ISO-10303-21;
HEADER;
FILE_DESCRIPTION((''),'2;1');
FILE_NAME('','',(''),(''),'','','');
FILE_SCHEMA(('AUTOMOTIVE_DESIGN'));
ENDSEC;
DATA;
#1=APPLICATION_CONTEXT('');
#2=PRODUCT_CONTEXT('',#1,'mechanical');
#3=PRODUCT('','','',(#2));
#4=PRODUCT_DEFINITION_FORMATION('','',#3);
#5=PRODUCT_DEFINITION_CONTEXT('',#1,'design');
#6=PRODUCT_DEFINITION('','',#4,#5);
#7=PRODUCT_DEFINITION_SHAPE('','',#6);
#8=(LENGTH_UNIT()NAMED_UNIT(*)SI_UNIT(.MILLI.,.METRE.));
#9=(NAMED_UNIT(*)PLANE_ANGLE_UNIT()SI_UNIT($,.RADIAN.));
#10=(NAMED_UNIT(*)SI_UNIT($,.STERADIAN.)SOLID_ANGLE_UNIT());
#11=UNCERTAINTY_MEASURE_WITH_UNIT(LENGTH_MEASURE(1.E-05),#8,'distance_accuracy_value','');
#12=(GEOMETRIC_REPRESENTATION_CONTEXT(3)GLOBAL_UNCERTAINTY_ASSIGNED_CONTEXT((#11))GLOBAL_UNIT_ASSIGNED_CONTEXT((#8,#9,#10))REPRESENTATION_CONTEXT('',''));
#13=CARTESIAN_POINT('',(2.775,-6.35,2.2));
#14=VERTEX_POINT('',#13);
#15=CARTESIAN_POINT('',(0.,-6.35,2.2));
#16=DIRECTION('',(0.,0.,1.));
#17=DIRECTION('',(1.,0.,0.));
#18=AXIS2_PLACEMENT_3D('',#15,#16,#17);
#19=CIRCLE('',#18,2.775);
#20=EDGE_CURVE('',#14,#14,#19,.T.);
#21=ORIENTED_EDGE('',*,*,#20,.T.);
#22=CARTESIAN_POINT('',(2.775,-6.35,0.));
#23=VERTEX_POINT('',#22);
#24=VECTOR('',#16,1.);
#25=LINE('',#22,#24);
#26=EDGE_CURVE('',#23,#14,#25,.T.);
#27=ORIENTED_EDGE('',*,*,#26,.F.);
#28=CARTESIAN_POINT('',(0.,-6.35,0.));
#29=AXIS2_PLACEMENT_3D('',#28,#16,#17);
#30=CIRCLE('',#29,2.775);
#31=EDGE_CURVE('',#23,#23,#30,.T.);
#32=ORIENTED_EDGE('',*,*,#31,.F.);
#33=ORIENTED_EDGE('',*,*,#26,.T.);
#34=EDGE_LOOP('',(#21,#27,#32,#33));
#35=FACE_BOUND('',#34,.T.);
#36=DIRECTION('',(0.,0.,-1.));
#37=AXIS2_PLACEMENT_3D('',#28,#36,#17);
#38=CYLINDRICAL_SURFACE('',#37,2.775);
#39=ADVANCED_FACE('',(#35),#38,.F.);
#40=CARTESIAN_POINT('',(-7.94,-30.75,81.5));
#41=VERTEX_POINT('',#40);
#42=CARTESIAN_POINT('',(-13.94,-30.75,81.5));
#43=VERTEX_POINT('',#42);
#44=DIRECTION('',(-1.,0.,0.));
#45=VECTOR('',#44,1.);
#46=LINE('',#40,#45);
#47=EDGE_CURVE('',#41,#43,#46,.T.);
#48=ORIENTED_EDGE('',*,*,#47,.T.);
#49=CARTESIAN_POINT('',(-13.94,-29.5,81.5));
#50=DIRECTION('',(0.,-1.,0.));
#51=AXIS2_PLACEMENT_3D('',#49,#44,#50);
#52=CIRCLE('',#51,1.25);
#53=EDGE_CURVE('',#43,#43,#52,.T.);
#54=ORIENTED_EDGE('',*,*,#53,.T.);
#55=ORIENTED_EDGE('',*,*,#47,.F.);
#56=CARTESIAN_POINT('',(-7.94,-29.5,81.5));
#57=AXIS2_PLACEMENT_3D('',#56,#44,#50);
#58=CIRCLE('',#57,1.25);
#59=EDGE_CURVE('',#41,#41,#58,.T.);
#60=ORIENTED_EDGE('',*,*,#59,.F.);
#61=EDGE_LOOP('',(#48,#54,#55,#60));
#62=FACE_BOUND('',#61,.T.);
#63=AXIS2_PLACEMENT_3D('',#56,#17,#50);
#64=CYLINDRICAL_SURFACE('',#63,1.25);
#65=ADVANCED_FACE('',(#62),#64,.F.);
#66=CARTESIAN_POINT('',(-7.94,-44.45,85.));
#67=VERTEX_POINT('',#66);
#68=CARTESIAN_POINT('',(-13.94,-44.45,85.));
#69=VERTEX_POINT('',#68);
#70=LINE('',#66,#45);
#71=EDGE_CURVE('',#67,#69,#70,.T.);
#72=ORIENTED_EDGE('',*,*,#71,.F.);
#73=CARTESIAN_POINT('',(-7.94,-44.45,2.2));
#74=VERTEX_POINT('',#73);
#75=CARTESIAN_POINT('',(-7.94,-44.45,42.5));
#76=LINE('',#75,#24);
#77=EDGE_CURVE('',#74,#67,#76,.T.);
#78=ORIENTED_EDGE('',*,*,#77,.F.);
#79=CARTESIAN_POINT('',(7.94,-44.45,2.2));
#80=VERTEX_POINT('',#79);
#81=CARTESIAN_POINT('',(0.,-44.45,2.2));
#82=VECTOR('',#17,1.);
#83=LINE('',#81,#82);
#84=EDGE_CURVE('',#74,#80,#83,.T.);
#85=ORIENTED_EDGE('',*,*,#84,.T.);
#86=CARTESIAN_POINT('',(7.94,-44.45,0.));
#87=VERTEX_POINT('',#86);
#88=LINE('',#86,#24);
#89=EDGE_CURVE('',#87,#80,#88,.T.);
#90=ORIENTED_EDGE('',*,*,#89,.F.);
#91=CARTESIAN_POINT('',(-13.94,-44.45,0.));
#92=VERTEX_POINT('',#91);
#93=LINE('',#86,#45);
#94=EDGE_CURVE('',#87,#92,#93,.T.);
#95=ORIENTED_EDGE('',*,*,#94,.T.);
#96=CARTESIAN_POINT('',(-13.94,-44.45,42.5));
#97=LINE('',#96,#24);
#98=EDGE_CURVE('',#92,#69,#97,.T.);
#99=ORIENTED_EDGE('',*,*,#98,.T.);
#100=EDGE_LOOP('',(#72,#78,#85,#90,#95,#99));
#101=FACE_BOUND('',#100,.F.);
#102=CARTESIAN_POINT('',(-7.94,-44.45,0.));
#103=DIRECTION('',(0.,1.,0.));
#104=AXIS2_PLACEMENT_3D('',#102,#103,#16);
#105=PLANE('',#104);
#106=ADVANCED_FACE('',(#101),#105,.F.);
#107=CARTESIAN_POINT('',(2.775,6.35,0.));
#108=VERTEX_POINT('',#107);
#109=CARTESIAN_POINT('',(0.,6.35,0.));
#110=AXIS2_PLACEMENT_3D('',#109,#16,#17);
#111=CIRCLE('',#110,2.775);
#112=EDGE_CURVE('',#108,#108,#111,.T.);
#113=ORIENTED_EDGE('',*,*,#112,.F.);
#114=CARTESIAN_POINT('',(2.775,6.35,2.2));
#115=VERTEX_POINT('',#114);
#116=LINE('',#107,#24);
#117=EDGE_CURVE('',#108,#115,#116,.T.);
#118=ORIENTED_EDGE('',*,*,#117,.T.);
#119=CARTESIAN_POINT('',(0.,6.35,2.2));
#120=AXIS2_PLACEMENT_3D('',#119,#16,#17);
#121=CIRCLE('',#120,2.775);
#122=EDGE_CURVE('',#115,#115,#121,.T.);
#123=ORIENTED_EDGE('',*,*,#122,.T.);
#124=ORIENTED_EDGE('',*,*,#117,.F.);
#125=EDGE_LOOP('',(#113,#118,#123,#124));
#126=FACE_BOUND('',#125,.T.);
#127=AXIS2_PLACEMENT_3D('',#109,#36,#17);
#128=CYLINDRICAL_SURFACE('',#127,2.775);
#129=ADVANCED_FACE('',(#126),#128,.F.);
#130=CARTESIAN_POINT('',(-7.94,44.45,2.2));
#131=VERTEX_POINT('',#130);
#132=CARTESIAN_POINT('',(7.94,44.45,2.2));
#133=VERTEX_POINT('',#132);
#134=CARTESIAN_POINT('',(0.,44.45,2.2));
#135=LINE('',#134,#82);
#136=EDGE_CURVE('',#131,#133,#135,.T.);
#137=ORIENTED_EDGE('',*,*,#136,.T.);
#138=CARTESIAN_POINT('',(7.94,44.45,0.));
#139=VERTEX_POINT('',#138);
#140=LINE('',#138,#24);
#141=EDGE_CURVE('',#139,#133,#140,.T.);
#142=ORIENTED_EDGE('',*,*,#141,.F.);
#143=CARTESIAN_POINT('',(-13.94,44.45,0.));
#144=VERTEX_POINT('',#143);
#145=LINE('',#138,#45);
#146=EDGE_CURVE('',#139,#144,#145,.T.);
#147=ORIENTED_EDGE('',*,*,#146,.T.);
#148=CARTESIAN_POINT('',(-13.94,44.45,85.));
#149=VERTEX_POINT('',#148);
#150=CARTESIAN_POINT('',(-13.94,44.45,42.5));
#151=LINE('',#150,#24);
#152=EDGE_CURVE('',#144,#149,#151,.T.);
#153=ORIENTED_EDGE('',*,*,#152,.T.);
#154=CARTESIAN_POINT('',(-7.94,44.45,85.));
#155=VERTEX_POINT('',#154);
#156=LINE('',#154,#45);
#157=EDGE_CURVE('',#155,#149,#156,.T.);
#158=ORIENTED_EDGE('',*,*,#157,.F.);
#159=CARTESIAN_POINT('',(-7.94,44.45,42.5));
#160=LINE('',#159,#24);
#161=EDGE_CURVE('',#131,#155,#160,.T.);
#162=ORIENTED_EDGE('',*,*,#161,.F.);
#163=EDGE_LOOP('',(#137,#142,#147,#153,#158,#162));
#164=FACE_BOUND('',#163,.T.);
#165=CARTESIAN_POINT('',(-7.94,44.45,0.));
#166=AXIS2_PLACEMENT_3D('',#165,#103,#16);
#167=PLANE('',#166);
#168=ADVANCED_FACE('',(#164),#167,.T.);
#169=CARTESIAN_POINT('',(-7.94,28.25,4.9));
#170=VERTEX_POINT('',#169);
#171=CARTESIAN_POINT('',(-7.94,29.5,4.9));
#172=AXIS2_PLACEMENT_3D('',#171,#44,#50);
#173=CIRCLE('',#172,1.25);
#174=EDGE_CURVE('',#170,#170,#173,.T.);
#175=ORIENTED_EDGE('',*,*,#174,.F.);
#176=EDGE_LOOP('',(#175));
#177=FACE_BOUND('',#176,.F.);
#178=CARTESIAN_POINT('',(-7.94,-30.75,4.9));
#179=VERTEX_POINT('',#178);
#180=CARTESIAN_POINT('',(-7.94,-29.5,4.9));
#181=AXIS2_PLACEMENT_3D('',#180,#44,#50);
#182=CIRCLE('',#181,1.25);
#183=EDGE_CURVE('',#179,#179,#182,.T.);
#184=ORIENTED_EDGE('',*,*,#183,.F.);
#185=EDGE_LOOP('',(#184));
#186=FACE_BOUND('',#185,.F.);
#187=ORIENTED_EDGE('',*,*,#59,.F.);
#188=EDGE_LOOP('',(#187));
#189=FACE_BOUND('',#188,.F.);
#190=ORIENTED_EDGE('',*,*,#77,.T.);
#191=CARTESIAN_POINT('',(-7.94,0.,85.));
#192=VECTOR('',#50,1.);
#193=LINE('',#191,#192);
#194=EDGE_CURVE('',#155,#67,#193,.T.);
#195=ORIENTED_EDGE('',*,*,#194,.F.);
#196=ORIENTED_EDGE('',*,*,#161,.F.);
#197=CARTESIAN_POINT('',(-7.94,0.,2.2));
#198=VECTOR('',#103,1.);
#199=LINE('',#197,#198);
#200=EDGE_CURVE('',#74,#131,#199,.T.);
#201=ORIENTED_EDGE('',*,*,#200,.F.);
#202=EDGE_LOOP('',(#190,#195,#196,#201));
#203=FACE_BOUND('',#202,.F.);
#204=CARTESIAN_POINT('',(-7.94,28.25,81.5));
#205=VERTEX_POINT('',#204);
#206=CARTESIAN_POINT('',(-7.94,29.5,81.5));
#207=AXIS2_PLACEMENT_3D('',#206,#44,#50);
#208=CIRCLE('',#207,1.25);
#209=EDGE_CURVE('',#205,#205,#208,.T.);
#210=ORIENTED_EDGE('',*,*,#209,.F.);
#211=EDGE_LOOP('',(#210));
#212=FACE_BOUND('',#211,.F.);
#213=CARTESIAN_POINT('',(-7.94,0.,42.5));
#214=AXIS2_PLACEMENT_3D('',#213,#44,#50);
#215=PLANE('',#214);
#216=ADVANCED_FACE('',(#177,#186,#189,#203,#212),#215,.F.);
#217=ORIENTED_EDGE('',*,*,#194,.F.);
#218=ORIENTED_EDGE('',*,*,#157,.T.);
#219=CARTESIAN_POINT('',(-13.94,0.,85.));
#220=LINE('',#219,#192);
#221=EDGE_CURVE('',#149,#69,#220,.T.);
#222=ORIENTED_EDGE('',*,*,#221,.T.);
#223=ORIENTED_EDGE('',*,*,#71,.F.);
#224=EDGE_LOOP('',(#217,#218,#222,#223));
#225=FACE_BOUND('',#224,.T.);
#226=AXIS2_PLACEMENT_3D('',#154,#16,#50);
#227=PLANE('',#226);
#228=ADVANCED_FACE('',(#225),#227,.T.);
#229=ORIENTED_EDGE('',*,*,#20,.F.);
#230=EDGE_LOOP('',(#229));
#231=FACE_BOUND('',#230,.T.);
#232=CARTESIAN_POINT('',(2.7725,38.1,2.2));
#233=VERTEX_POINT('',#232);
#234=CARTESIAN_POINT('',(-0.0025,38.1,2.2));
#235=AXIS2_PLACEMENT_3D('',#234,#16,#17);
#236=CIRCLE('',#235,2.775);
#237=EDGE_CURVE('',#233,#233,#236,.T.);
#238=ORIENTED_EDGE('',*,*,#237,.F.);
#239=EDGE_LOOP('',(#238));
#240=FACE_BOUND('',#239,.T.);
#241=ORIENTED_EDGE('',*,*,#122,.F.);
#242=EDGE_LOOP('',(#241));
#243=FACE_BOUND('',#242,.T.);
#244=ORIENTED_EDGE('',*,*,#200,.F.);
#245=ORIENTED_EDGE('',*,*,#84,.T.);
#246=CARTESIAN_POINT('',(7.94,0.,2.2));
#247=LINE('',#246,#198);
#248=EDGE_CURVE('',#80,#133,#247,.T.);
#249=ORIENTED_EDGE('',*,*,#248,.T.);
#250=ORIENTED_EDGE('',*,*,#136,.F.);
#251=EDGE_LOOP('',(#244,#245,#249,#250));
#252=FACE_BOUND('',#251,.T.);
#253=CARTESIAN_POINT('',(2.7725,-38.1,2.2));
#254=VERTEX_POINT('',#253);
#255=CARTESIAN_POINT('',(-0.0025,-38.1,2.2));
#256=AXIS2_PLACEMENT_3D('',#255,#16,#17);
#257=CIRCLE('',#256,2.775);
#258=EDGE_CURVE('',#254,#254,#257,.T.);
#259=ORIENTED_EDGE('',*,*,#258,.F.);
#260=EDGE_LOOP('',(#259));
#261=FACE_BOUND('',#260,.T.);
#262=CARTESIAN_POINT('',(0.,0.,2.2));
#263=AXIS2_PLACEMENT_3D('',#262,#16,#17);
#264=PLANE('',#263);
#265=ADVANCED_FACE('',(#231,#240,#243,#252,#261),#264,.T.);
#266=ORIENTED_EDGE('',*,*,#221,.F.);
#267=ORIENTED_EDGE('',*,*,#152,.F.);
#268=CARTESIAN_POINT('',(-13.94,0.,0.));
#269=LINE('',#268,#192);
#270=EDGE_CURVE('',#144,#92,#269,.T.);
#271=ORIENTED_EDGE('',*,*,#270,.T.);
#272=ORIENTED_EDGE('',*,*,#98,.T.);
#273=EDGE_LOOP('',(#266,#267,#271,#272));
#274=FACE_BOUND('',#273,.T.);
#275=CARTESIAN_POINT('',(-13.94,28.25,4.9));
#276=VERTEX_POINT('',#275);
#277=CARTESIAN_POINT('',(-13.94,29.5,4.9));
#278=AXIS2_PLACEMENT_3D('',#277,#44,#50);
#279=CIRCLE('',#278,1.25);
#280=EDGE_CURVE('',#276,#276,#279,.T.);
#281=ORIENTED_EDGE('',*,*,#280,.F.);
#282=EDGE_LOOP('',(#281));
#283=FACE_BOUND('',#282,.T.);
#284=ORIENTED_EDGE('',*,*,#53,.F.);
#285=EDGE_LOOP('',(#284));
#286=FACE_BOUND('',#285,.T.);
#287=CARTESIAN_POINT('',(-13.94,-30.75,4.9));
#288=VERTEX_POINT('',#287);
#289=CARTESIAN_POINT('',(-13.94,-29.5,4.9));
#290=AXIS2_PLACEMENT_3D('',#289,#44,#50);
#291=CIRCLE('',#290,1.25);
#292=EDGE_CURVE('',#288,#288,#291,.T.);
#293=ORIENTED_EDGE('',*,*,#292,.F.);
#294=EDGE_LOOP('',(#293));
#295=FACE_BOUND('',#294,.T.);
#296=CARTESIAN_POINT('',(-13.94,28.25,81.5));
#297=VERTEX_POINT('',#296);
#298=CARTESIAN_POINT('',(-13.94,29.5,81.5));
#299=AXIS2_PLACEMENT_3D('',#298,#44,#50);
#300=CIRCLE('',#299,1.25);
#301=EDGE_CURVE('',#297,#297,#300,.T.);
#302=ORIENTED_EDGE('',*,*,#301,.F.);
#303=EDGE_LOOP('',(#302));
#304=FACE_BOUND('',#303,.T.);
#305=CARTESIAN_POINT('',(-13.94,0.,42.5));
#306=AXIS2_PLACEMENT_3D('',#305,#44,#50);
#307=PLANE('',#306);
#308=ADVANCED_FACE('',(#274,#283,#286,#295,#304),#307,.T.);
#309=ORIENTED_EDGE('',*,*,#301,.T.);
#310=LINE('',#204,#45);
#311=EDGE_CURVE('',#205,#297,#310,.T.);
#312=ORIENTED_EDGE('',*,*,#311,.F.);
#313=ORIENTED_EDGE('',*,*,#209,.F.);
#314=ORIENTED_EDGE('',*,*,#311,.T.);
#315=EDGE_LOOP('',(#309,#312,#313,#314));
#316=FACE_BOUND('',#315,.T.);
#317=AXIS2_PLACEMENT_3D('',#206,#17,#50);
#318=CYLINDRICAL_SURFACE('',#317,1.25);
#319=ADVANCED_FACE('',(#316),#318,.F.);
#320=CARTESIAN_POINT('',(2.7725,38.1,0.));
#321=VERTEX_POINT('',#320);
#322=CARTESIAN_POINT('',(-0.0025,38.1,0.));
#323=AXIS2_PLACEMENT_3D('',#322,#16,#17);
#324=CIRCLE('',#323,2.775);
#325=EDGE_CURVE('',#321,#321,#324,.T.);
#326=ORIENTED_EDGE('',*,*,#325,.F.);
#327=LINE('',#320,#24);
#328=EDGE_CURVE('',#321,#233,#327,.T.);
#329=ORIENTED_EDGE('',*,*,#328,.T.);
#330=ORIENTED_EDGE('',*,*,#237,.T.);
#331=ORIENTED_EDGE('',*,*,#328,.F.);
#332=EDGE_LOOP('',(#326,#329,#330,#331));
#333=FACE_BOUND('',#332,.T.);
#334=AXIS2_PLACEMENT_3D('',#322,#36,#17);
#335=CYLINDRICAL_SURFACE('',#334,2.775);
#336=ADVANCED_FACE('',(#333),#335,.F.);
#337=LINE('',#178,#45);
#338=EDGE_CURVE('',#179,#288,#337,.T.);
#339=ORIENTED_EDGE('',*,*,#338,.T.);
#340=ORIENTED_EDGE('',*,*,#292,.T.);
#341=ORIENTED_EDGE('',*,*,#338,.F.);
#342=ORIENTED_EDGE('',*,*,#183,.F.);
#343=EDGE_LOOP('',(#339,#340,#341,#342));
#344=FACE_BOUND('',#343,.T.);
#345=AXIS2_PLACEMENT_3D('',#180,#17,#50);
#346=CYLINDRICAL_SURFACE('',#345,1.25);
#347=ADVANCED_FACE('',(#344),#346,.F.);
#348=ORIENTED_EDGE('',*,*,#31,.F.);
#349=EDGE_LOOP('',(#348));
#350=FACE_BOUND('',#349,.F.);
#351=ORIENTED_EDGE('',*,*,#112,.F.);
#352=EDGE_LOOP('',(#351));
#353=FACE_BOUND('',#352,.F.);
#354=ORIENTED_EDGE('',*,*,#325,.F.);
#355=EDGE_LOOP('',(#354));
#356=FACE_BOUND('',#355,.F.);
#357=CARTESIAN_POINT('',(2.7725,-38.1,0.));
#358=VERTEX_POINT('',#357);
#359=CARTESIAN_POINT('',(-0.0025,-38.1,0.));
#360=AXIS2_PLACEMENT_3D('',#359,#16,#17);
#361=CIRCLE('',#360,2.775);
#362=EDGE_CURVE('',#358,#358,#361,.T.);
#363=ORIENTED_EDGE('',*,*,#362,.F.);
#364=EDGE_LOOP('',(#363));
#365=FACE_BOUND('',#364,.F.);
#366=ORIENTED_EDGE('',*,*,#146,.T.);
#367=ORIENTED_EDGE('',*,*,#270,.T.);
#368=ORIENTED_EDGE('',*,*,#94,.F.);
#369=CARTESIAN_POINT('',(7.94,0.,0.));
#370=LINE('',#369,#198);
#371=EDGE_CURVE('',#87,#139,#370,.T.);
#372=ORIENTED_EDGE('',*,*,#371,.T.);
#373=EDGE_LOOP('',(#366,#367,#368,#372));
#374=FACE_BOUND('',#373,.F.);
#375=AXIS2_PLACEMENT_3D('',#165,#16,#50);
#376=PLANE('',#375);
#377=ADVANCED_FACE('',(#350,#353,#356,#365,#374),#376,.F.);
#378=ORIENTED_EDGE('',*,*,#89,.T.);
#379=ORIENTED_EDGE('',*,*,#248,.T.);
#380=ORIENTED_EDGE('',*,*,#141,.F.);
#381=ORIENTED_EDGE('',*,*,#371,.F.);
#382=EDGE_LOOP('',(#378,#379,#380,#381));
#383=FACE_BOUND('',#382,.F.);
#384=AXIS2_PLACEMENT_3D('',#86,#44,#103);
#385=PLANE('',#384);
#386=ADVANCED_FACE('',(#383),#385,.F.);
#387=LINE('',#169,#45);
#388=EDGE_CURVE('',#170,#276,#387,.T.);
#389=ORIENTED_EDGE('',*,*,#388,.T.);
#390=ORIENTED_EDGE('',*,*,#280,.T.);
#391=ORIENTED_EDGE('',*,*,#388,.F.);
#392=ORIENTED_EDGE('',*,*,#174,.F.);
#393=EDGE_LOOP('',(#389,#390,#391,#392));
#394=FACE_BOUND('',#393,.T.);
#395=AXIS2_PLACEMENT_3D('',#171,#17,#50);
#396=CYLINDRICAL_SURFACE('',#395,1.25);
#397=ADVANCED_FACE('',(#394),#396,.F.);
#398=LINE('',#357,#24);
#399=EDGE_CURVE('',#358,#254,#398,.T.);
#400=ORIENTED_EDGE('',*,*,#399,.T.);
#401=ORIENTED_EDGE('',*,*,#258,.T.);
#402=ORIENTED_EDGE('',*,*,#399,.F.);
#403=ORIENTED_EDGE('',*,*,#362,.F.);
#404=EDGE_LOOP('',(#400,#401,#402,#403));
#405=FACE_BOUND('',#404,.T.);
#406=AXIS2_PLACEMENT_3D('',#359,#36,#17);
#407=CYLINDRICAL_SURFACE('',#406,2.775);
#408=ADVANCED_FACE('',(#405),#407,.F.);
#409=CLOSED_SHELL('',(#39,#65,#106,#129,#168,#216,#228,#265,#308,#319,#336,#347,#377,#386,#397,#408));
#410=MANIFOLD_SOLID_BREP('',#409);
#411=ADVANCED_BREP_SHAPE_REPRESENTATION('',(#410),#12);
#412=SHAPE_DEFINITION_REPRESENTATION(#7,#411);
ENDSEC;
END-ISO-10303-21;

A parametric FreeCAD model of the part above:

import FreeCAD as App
import Part
import Sketcher
from FreeCAD import Vector


def add_polygon(sketch, points):
    """Adds a closed chain of lines whose ends are joined by coincident constraints."""
    first, n = sketch.GeometryCount, len(points)
    for a, b in zip(points, points[1:] + points[:1]):
        sketch.addGeometry(Part.LineSegment(App.Vector(*a, 0), App.Vector(*b, 0)), False)
    for i in range(n):
        sketch.addConstraint(Sketcher.Constraint("Coincident", first + i, 2, first + (i + 1) % n, 1))

doc = App.newDocument("Part")
params = doc.addObject("Spreadsheet::Sheet", "Params")
for row, (alias, value) in enumerate([
    ("sketch1_diameter", "5.55 mm"),
    ("sketch1_height", "88.9 mm"),
    ("sketch1_width", "15.88 mm"),
    ("pad1_length", "2.2 mm"),
    ("sketch2_diameter", "2.5 mm"),
    ("sketch2_height", "85 mm"),
    ("sketch2_width", "88.9 mm"),
    ("pad2_length", "6 mm"),
], start=1):
    params.set(f"A{row}", alias)
    params.set(f"B{row}", "=" + value)
    params.setAlias(f"B{row}", alias)

body = doc.addObject("PartDesign::Body", "Body")

# Sketch on XY plane
sketch1 = body.newObject("Sketcher::SketchObject", "Sketch")
sketch1.AttachmentSupport = (doc.getObject("XY_Plane"), [""])
sketch1.MapMode = "FlatFace"
add_polygon(sketch1, [(-7.94, 44.45), (-7.94, -44.45), (7.94, -44.45), (7.94, 44.45)])  # lines 0-3
sketch1.addGeometry(Part.Circle(Vector(-0.0025, -38.1, 0), Vector(0, 0, 1), 2.775), False)  # 4
sketch1.addGeometry(Part.Circle(Vector(0, -6.35, 0), Vector(0, 0, 1), 2.775), False)  # 5
sketch1.addGeometry(Part.Circle(Vector(-0.0025, 38.1, 0), Vector(0, 0, 1), 2.775), False)  # 6
sketch1.addGeometry(Part.Circle(Vector(0, 6.35, 0), Vector(0, 0, 1), 2.775), False)  # 7
sketch1.addConstraint(Sketcher.Constraint("Vertical", 0))
sketch1.addConstraint(Sketcher.Constraint("Horizontal", 1))
sketch1.addConstraint(Sketcher.Constraint("Vertical", 2))
sketch1.addConstraint(Sketcher.Constraint("Horizontal", 3))
sketch1.addConstraint(Sketcher.Constraint("Equal", 4, 5))
sketch1.addConstraint(Sketcher.Constraint("Equal", 5, 6))
sketch1.addConstraint(Sketcher.Constraint("Equal", 6, 7))
sketch1.addConstraint(Sketcher.Constraint("Symmetric", 5, 3, 7, 3, -1, 1))
sketch1.addConstraint(Sketcher.Constraint("Symmetric", 0, 2, 2, 2, -1, 1))
sketch1.addConstraint(Sketcher.Constraint("Symmetric", 4, 3, 6, 3, -1))
sketch1.addConstraint(Sketcher.Constraint("PointOnObject", 5, 3, -2))
sketch1.addConstraint(Sketcher.Constraint("Diameter", 4, 5.55))
sketch1.addConstraint(Sketcher.Constraint("DistanceY", 0, 2, 0, 1, 88.9))
sketch1.addConstraint(Sketcher.Constraint("DistanceX", 1, 1, 1, 2, 15.88))
sketch1.addConstraint(Sketcher.Constraint("DistanceY", 4, 3, -1, 1, 38.1))
sketch1.addConstraint(Sketcher.Constraint("DistanceY", 5, 3, 7, 3, 12.7))
sketch1.addConstraint(Sketcher.Constraint("DistanceX", 4, 3, -1, 1, 0.0025))
sketch1.setExpression("Constraints[15]", "Params.sketch1_diameter")
sketch1.setExpression("Constraints[16]", "Params.sketch1_height")
sketch1.setExpression("Constraints[17]", "Params.sketch1_width")
pad1 = body.newObject("PartDesign::Pad", "Pad")
pad1.Profile = sketch1
pad1.setExpression("Length", "Params.pad1_length")

# Sketch on YZ plane
sketch2 = body.newObject("Sketcher::SketchObject", "Sketch001")
sketch2.AttachmentSupport = (doc.getObject("YZ_Plane"), [""])
sketch2.MapMode = "FlatFace"
sketch2.AttachmentOffset = App.Placement(Vector(0, 0, -7.94), App.Rotation())
add_polygon(sketch2, [(44.45, 85), (44.45, 0), (-44.45, 0), (-44.45, 85)])  # lines 0-3
sketch2.addGeometry(Part.Circle(Vector(29.5, 4.9, 0), Vector(0, 0, 1), 1.25), False)  # 4
sketch2.addGeometry(Part.Circle(Vector(-29.5, 4.9, 0), Vector(0, 0, 1), 1.25), False)  # 5
sketch2.addGeometry(Part.Circle(Vector(29.5, 81.5, 0), Vector(0, 0, 1), 1.25), False)  # 6
sketch2.addGeometry(Part.Circle(Vector(-29.5, 81.5, 0), Vector(0, 0, 1), 1.25), False)  # 7
sketch2.addConstraint(Sketcher.Constraint("Vertical", 0))
sketch2.addConstraint(Sketcher.Constraint("Horizontal", 1))
sketch2.addConstraint(Sketcher.Constraint("Vertical", 2))
sketch2.addConstraint(Sketcher.Constraint("Horizontal", 3))
sketch2.addConstraint(Sketcher.Constraint("Equal", 4, 5))
sketch2.addConstraint(Sketcher.Constraint("Equal", 5, 6))
sketch2.addConstraint(Sketcher.Constraint("Equal", 6, 7))
sketch2.addConstraint(Sketcher.Constraint("Symmetric", 0, 2, 1, 2, -1, 1))
sketch2.addConstraint(Sketcher.Constraint("Symmetric", 4, 3, 5, 3, -2))
sketch2.addConstraint(Sketcher.Constraint("Symmetric", 6, 3, 7, 3, -2))
sketch2.addConstraint(Sketcher.Constraint("Vertical", 4, 3, 6, 3))
sketch2.addConstraint(Sketcher.Constraint("Diameter", 4, 2.5))
sketch2.addConstraint(Sketcher.Constraint("DistanceY", 0, 2, 0, 1, 85.0))
sketch2.addConstraint(Sketcher.Constraint("DistanceX", 1, 2, 1, 1, 88.9))
sketch2.addConstraint(Sketcher.Constraint("DistanceX", 5, 3, 4, 3, 59.0))
sketch2.addConstraint(Sketcher.Constraint("DistanceY", -1, 1, 4, 3, 4.9))
sketch2.addConstraint(Sketcher.Constraint("DistanceY", -1, 1, 6, 3, 81.5))
sketch2.setExpression("Constraints[15]", "Params.sketch2_diameter")
sketch2.setExpression("Constraints[16]", "Params.sketch2_height")
sketch2.setExpression("Constraints[17]", "Params.sketch2_width")
pad2 = body.newObject("PartDesign::Pad", "Pad001")
pad2.Profile = sketch2
pad2.setExpression("Length", "Params.pad2_length")
pad2.Reversed = True

doc.recompute()
